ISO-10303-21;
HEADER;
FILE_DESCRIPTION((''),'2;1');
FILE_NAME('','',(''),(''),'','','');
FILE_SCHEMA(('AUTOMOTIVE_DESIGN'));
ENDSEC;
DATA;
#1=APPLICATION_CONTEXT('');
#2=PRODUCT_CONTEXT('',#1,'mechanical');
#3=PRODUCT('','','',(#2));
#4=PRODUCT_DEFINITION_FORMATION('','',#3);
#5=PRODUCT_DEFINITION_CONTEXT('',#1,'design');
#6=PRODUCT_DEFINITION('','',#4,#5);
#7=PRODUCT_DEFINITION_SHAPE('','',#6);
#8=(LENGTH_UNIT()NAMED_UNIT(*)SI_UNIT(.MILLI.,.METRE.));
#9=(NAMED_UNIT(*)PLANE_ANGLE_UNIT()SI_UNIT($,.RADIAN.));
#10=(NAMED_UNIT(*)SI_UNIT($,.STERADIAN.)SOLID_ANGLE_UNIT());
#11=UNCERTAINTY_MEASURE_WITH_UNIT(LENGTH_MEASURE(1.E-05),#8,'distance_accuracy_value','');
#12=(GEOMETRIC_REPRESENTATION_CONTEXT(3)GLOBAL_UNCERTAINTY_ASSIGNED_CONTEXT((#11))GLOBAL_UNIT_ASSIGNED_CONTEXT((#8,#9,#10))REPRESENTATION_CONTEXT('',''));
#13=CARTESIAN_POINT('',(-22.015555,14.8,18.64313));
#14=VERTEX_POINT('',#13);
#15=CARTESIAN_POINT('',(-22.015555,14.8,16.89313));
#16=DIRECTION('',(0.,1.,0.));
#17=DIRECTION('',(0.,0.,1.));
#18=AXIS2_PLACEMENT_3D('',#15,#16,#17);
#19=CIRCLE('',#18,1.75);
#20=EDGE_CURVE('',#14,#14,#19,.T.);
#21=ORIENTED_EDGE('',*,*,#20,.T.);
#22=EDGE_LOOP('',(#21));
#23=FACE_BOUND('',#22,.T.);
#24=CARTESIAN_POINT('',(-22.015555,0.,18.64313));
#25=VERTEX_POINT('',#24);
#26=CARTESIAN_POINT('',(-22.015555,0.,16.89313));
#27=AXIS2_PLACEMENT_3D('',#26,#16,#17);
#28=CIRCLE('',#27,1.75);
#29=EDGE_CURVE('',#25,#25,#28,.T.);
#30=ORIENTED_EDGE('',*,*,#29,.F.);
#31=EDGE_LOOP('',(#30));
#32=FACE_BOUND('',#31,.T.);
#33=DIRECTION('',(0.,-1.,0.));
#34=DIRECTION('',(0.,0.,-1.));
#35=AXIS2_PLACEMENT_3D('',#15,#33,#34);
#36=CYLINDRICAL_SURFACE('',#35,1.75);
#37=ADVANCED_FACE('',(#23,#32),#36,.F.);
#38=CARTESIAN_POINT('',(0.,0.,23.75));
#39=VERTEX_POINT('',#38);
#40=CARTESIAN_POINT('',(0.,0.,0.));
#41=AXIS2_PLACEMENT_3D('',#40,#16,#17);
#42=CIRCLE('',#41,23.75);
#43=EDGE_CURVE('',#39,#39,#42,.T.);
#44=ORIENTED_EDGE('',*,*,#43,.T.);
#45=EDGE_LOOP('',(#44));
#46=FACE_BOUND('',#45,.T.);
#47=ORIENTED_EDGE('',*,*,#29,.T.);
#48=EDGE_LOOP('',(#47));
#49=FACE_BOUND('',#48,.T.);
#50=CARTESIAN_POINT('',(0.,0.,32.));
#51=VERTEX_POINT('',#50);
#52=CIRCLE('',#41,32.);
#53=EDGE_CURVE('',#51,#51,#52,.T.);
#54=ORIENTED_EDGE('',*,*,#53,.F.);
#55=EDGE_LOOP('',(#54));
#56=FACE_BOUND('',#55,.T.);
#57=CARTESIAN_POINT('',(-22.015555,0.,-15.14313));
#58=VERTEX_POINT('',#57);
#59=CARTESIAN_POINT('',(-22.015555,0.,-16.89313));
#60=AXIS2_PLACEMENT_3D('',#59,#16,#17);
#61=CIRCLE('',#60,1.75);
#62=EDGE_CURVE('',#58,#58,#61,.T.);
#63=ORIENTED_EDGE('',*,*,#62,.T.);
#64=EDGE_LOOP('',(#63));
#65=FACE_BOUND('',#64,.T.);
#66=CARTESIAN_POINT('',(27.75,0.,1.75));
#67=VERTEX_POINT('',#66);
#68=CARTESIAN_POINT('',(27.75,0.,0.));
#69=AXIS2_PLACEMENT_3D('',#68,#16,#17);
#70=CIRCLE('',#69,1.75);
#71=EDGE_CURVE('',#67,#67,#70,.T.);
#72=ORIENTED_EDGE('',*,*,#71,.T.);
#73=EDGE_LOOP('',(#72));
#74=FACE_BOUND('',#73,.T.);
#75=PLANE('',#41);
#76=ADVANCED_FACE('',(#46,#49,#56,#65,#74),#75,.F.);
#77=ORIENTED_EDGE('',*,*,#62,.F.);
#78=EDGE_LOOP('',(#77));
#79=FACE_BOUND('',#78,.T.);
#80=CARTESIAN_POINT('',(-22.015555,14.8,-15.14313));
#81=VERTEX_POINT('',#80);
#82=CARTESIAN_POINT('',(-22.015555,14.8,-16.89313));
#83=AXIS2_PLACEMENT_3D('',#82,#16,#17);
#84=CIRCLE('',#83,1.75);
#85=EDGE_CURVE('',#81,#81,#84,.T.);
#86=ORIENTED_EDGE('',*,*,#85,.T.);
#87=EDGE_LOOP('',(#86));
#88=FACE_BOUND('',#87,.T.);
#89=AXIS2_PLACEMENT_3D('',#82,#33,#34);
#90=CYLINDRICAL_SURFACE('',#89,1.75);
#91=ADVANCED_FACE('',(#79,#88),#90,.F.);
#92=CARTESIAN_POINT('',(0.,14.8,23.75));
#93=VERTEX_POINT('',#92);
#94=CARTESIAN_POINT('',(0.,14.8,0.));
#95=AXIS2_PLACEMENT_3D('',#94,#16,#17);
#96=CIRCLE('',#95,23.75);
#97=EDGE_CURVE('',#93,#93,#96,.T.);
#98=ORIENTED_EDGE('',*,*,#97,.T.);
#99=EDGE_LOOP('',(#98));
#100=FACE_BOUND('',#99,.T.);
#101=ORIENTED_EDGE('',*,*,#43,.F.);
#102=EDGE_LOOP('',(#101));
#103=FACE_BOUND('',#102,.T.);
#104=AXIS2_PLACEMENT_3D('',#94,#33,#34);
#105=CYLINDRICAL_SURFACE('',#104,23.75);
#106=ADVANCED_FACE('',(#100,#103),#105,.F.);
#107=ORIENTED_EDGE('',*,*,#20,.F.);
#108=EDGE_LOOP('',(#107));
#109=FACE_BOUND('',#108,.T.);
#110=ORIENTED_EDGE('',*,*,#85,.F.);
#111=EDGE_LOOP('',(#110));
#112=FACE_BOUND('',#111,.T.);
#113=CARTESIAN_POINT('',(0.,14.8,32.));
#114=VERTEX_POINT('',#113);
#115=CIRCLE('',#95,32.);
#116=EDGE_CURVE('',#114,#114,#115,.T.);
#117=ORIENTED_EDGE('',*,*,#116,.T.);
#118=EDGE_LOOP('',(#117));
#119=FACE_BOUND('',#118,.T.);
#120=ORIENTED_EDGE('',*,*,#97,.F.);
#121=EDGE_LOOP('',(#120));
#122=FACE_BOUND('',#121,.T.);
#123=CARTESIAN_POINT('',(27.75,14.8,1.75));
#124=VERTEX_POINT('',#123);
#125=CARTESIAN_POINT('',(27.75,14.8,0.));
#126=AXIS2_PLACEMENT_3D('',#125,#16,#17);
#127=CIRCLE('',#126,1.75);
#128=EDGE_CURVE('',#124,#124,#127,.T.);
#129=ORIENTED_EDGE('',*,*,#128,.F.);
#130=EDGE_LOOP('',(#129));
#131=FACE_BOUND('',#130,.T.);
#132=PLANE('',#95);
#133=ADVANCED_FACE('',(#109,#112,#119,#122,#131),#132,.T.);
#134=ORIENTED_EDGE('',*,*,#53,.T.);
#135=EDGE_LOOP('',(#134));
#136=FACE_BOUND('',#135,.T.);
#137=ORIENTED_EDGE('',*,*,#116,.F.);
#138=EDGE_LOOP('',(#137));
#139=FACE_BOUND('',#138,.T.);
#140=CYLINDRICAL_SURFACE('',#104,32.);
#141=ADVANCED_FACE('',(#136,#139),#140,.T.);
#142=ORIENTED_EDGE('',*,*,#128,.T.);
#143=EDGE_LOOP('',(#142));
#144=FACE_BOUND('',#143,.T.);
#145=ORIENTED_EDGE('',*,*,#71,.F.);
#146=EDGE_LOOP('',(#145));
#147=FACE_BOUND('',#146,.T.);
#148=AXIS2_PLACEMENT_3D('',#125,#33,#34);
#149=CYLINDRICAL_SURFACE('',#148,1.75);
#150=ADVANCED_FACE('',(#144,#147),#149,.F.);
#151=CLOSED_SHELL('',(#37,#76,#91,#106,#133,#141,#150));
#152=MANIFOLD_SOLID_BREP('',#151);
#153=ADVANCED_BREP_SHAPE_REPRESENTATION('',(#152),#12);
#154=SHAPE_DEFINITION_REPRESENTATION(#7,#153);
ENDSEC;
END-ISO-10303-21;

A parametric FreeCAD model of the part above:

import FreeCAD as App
import Part
import Sketcher
from FreeCAD import Vector
Q = App.Units.Quantity

doc = App.newDocument("Part")
params = doc.addObject("Spreadsheet::Sheet", "Params")
for row, (alias, value) in enumerate([
    ("sketch1_diameter", "64 mm"),
    ("sketch1_diameter2", "3.5 mm"),
    ("sketch1_diameter3", "47.5 mm"),
    ("pad1_length", "14.8 mm"),
], start=1):
    params.set(f"A{row}", alias)
    params.set(f"B{row}", "=" + value)
    params.setAlias(f"B{row}", alias)

body = doc.addObject("PartDesign::Body", "Body")

# Sketch on XZ plane
sketch1 = body.newObject("Sketcher::SketchObject", "Sketch")
sketch1.AttachmentSupport = (doc.getObject("XZ_Plane"), [""])
sketch1.MapMode = "FlatFace"
sketch1.addGeometry([
    Part.Circle(Vector(0, 0, 0), Vector(0, 0, 1), 32),  # 0
    Part.Circle(Vector(-22, -16.9, 0), Vector(0, 0, 1), 1.8),  # 1
    Part.Circle(Vector(-22, 16.9, 0), Vector(0, 0, 1), 1.8),  # 2
    Part.Circle(Vector(0, 0, 0), Vector(0, 0, 1), 23.8),  # 3
    Part.Circle(Vector(27.8, 0, 0), Vector(0, 0, 1), 1.8),  # 4
], False)
sketch1.addConstraint([
    Sketcher.Constraint("Coincident", 0, 3, -1, 1),
    Sketcher.Constraint("Coincident", 3, 3, -1, 1),
    Sketcher.Constraint("Equal", 1, 2),
    Sketcher.Constraint("Equal", 2, 4),
    Sketcher.Constraint("Symmetric", 1, 3, 2, 3, -1),
    Sketcher.Constraint("PointOnObject", 4, 3, -1),
    Sketcher.Constraint("Diameter", 0, Q("64 mm")),
    Sketcher.Constraint("Diameter", 1, Q("3.5 mm")),
    Sketcher.Constraint("Diameter", 3, Q("47.5 mm")),
    Sketcher.Constraint("DistanceX", -1, 1, 4, 3, Q("27.75 mm")),
    Sketcher.Constraint("DistanceY", 1, 3, -1, 1, Q("16.89313 mm")),
    Sketcher.Constraint("DistanceX", 1, 3, -1, 1, Q("22.015555 mm")),
])
sketch1.setExpression("Constraints[6]", "Params.sketch1_diameter")
sketch1.setExpression("Constraints[7]", "Params.sketch1_diameter2")
sketch1.setExpression("Constraints[8]", "Params.sketch1_diameter3")
pad1 = body.newObject("PartDesign::Pad", "Pad")
pad1.Profile = sketch1
pad1.setExpression("Length", "Params.pad1_length")
pad1.Reversed = True

doc.recompute()
